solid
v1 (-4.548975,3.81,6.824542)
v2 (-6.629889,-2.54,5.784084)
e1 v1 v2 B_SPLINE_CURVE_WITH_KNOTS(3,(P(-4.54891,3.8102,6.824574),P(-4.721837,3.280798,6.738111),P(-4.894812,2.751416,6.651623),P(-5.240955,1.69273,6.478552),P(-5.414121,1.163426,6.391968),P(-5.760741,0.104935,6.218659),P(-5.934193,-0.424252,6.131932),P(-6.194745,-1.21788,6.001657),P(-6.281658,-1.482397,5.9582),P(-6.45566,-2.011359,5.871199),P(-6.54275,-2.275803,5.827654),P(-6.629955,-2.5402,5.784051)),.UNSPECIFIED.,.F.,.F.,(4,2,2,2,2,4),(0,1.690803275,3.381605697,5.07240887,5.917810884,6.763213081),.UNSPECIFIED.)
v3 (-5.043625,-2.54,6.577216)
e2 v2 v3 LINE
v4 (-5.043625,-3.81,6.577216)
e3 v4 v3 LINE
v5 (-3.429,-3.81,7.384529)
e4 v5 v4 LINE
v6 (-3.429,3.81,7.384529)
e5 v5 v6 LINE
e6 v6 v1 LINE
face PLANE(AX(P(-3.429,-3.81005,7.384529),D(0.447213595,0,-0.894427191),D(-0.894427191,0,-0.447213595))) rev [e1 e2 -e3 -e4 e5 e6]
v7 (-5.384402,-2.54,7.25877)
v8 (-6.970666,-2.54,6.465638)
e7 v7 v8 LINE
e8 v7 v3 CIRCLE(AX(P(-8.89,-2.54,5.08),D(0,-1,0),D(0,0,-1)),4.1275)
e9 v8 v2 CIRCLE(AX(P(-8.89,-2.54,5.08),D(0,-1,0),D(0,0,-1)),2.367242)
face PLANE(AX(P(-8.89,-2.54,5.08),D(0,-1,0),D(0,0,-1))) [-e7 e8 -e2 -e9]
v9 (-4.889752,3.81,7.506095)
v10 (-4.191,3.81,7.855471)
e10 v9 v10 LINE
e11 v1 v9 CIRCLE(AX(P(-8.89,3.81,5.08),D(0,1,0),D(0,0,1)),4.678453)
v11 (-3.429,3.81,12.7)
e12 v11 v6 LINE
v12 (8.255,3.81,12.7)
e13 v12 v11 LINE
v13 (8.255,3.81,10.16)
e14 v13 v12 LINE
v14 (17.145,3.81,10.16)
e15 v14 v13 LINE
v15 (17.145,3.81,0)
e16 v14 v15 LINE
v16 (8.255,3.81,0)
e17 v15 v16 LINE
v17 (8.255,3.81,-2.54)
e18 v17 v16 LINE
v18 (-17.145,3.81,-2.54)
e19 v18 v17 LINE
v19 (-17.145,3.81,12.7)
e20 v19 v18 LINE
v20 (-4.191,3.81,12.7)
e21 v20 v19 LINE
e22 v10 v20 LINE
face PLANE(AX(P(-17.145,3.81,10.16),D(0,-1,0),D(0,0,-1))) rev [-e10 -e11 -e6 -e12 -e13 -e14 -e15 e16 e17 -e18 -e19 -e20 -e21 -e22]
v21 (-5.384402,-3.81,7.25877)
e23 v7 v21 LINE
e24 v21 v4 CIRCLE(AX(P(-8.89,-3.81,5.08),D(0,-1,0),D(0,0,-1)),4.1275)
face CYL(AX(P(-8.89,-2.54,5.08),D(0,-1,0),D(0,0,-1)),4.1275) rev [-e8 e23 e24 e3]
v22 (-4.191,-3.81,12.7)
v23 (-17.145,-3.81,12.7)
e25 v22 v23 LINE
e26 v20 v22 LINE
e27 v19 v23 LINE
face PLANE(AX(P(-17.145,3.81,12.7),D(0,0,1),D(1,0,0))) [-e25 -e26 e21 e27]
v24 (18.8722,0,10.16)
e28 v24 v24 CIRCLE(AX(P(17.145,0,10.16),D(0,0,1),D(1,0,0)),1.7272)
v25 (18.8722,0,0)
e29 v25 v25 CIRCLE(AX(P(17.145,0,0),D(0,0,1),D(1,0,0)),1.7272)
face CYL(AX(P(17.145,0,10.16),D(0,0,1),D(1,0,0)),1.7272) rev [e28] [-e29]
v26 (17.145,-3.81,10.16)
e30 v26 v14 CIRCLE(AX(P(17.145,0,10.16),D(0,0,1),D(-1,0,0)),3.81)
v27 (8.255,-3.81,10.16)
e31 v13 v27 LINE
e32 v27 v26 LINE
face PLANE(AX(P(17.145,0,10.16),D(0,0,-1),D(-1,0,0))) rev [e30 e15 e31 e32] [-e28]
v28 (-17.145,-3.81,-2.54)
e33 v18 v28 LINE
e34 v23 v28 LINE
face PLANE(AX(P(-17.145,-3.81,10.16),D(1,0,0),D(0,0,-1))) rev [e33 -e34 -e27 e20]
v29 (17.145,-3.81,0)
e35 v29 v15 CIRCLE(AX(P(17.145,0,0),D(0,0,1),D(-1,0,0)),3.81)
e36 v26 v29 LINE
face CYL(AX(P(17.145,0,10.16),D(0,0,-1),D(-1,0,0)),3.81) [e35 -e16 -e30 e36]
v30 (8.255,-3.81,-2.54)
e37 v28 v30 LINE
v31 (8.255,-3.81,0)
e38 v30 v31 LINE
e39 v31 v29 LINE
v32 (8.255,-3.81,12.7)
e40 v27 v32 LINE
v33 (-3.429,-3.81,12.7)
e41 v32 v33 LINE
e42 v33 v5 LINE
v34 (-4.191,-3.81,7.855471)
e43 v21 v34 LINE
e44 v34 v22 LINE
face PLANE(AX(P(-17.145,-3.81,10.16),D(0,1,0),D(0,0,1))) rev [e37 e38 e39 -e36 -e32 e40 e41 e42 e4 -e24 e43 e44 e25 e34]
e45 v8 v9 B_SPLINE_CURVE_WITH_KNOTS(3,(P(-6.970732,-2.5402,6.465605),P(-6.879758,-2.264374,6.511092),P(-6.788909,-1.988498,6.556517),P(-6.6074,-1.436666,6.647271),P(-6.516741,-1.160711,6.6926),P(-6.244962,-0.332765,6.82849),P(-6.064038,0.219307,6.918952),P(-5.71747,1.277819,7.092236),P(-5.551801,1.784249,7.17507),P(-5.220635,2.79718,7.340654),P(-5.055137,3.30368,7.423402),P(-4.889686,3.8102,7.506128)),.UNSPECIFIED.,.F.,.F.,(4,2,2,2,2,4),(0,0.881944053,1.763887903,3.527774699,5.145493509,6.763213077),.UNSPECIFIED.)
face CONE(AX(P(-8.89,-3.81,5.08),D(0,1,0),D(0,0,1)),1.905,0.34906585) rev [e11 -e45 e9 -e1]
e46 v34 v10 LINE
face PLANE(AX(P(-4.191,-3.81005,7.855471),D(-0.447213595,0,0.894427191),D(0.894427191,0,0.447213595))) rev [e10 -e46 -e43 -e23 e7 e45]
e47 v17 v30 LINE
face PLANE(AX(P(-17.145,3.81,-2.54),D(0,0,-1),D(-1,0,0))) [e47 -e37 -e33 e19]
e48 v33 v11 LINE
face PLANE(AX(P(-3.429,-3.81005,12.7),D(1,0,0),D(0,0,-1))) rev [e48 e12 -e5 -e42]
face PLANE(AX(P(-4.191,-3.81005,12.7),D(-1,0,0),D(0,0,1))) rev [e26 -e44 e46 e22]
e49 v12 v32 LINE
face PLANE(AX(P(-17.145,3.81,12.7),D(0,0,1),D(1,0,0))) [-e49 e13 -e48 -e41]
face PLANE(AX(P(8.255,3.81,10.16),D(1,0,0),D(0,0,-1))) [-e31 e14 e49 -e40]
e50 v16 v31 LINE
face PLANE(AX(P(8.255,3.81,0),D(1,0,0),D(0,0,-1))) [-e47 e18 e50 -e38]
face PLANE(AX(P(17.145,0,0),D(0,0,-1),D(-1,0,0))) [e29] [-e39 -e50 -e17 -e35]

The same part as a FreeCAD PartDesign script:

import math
import FreeCAD as App
import Part
import Sketcher
from FreeCAD import Vector
Q = App.Units.Quantity

doc = App.newDocument("Part")
body = doc.addObject("PartDesign::Body", "Body")

# Sketch on XY plane
sketch1 = doc.addObject("Sketcher::SketchObject", "Sketch")
body.addObject(sketch1)
sketch1.AttachmentSupport = (doc.XY_Plane, [""])
sketch1.MapMode = "FlatFace"
sketch1.addGeometry(Part.LineSegment(Vector(-17.145, -3.81, 0), Vector(17.145, -3.81, 0)), False)
sketch1.addGeometry(Part.ArcOfCircle(Part.Circle(Vector(17.145, 0, 0), Vector(0, 0, 1), 3.81), math.radians(-90), math.radians(90)), False)
sketch1.addGeometry(Part.LineSegment(Vector(17.145, 3.81, 0), Vector(-17.145, 3.81, 0)), False)
sketch1.addGeometry(Part.LineSegment(Vector(-17.145, 3.81, 0), Vector(-17.145, -3.81, 0)), False)
sketch1.addConstraint(Sketcher.Constraint("Tangent", 0, 2, 1, 1))
sketch1.addConstraint(Sketcher.Constraint("Tangent", 1, 2, 2, 1))
sketch1.addConstraint(Sketcher.Constraint("Coincident", 2, 2, 3, 1))
sketch1.addConstraint(Sketcher.Constraint("Coincident", 3, 2, 0, 1))
sketch1.addConstraint(Sketcher.Constraint("Horizontal", 0))
sketch1.addConstraint(Sketcher.Constraint("Horizontal", 2))
sketch1.addConstraint(Sketcher.Constraint("Vertical", 3))
sketch1.addConstraint(Sketcher.Constraint("Symmetric", 0, 2, 2, 2, -1, 1))
sketch1.addConstraint(Sketcher.Constraint("Radius", 1, Q("0.15 in")))
sketch1.addConstraint(Sketcher.Constraint("DistanceX", 0, 1, 0, 2, Q("1.35 in")))
pad1 = doc.addObject("PartDesign::Pad", "Pad")
body.addObject(pad1)
pad1.Profile = sketch1
pad1.Length = Q("0.4 in")

# Sketch on XY plane
sketch2 = doc.addObject("Sketcher::SketchObject", "Sketch001")
body.addObject(sketch2)
sketch2.AttachmentSupport = (doc.XY_Plane, [""])
sketch2.MapMode = "FlatFace"
sketch2.AttachmentOffset = App.Placement(Vector(0, 0, 0.4 * 25.4), App.Rotation())
sketch2.addGeometry(Part.Circle(Vector(17.145, 0, 0), Vector(0, 0, 1), 1.7272), False)
sketch2.addConstraint(Sketcher.Constraint("PointOnObject", 0, 3, -1))
sketch2.addConstraint(Sketcher.Constraint("Diameter", 0, Q("0.136 in")))
sketch2.addConstraint(Sketcher.Constraint("DistanceX", -1, 1, 0, 3, Q("0.675 in")))
doc.recompute()
hole = doc.addObject("PartDesign::Hole", "Hole")
body.addObject(hole)
hole.Profile = sketch2
hole.ThreadType = "None"
hole.Diameter = Q("0.136 in")
hole.DepthType = "ThroughAll"

# Sketch on XZ plane
sketch3 = doc.addObject("Sketcher::SketchObject", "Sketch002")
body.addObject(sketch3)
sketch3.AttachmentSupport = (doc.XZ_Plane, [""])
sketch3.MapMode = "FlatFace"
sketch3.AttachmentOffset = App.Placement(Vector(0, 0, 0.15 * 25.4), App.Rotation())
sketch3.addGeometry(Part.Circle(Vector(-8.89, 5.08, 0), Vector(0, 0, 1), 1.905), False)
sketch3.addConstraint(Sketcher.Constraint("Diameter", 0, Q("0.15 in")))
sketch3.addConstraint(Sketcher.Constraint("DistanceY", -1, 1, 0, 3, Q("0.2 in")))
sketch3.addConstraint(Sketcher.Constraint("DistanceX", 0, 3, -1, 1, Q("0.35 in")))
pocket1 = doc.addObject("PartDesign::Pocket", "Pocket")
body.addObject(pocket1)
pocket1.Profile = sketch3
pocket1.Length = 8.62
pocket1.TaperAngle = 20

# Sketch on XZ plane
sketch4 = doc.addObject("Sketcher::SketchObject", "Sketch003")
body.addObject(sketch4)
sketch4.AttachmentSupport = (doc.XZ_Plane, [""])
sketch4.MapMode = "FlatFace"
sketch4.AttachmentOffset = App.Placement(Vector(0, 0, 0.15 * 25.4), App.Rotation())
sketch4.addGeometry(Part.Circle(Vector(-8.89, 5.08, 0), Vector(0, 0, 1), 4.1275), False)
sketch4.addConstraint(Sketcher.Constraint("Diameter", 0, Q("0.325 in")))
sketch4.addConstraint(Sketcher.Constraint("DistanceY", -1, 1, 0, 3, Q("0.2 in")))
sketch4.addConstraint(Sketcher.Constraint("DistanceX", 0, 3, -1, 1, Q("0.35 in")))
pocket2 = doc.addObject("PartDesign::Pocket", "Pocket001")
body.addObject(pocket2)
pocket2.Profile = sketch4
pocket2.Length = Q("0.05 in")

# Sketch on XZ plane
sketch5 = doc.addObject("Sketcher::SketchObject", "Sketch004")
body.addObject(sketch5)
sketch5.AttachmentSupport = (doc.XZ_Plane, [""])
sketch5.MapMode = "FlatFace"
sketch5.AttachmentOffset = App.Placement(Vector(0, 0, 0.15 * 25.4), App.Rotation())
sketch5.addGeometry(Part.LineSegment(Vector(-17.145, 12.7, 0), Vector(-17.145, 10.16, 0)), False)
sketch5.addGeometry(Part.LineSegment(Vector(-17.145, 10.16, 0), Vector(8.255, 10.16, 0)), False)
sketch5.addGeometry(Part.LineSegment(Vector(8.255, 10.16, 0), Vector(8.255, 12.7, 0)), False)
sketch5.addGeometry(Part.LineSegment(Vector(8.255, 12.7, 0), Vector(-17.145, 12.7, 0)), False)
sketch5.addGeometry(Part.LineSegment(Vector(-17.145, 0, 0), Vector(-17.145, -2.54, 0)), False)
sketch5.addGeometry(Part.LineSegment(Vector(-17.145, -2.54, 0), Vector(8.255, -2.54, 0)), False)
sketch5.addGeometry(Part.LineSegment(Vector(8.255, -2.54, 0), Vector(8.255, 0, 0)), False)
sketch5.addGeometry(Part.LineSegment(Vector(8.255, 0, 0), Vector(-17.145, 0, 0)), False)
sketch5.addConstraint(Sketcher.Constraint("Coincident", 0, 2, 1, 1))
sketch5.addConstraint(Sketcher.Constraint("Coincident", 1, 2, 2, 1))
sketch5.addConstraint(Sketcher.Constraint("Coincident", 2, 2, 3, 1))
sketch5.addConstraint(Sketcher.Constraint("Coincident", 3, 2, 0, 1))
sketch5.addConstraint(Sketcher.Constraint("Coincident", 4, 2, 5, 1))
sketch5.addConstraint(Sketcher.Constraint("Coincident", 5, 2, 6, 1))
sketch5.addConstraint(Sketcher.Constraint("Coincident", 6, 2, 7, 1))
sketch5.addConstraint(Sketcher.Constraint("Coincident", 7, 2, 4, 1))
sketch5.addConstraint(Sketcher.Constraint("Vertical", 0))
sketch5.addConstraint(Sketcher.Constraint("Horizontal", 1))
sketch5.addConstraint(Sketcher.Constraint("Vertical", 2))
sketch5.addConstraint(Sketcher.Constraint("Horizontal", 3))
sketch5.addConstraint(Sketcher.Constraint("Vertical", 4))
sketch5.addConstraint(Sketcher.Constraint("Horizontal", 5))
sketch5.addConstraint(Sketcher.Constraint("Vertical", 6))
sketch5.addConstraint(Sketcher.Constraint("Horizontal", 7))
sketch5.addConstraint(Sketcher.Constraint("PointOnObject", 6, 2, -1))
sketch5.addConstraint(Sketcher.Constraint("Vertical", 3, 2, 4, 2))
sketch5.addConstraint(Sketcher.Constraint("Vertical", 2, 2, 5, 2))
sketch5.addConstraint(Sketcher.Constraint("Equal", 2, 4))
sketch5.addConstraint(Sketcher.Constraint("DistanceX", 1, 1, 1, 2, Q("1 in")))
sketch5.addConstraint(Sketcher.Constraint("DistanceY", 0, 2, 0, 1, Q("0.1 in")))
sketch5.addConstraint(Sketcher.Constraint("DistanceY", -1, 1, 0, 2, Q("0.4 in")))
sketch5.addConstraint(Sketcher.Constraint("DistanceX", 0, 2, -1, 1, Q("0.675 in")))
pad2 = doc.addObject("PartDesign::Pad", "Pad001")
body.addObject(pad2)
pad2.Profile = sketch5
pad2.Length = Q("0.3 in")
pad2.Reversed = True

# Sketch on XZ plane
sketch6 = doc.addObject("Sketcher::SketchObject", "Sketch005")
body.addObject(sketch6)
sketch6.AttachmentSupport = (doc.XZ_Plane, [""])
sketch6.MapMode = "FlatFace"
sketch6.AttachmentOffset = App.Placement(Vector(0, 0, -0.15 * 25.4), App.Rotation())
sketch6.addGeometry(Part.LineSegment(Vector(-3.429, 12.7, 0), Vector(-3.429, 7.384529, 0)), False)
sketch6.addGeometry(Part.LineSegment(Vector(-3.429, 7.384529, 0), Vector(-8.719612, 4.739223, 0)), False)
sketch6.addGeometry(Part.LineSegment(Vector(-8.719612, 4.739223, 0), Vector(-9.060388, 5.420777, 0)), False)
sketch6.addGeometry(Part.LineSegment(Vector(-9.060388, 5.420777, 0), Vector(-4.191, 7.855471, 0)), False)
sketch6.addGeometry(Part.LineSegment(Vector(-4.191, 7.855471, 0), Vector(-4.191, 12.7, 0)), False)
sketch6.addGeometry(Part.LineSegment(Vector(-4.191, 12.7, 0), Vector(-3.429, 12.7, 0)), False)
sketch6.addConstraint(Sketcher.Constraint("Coincident", 0, 2, 1, 1))
sketch6.addConstraint(Sketcher.Constraint("Coincident", 1, 2, 2, 1))
sketch6.addConstraint(Sketcher.Constraint("Coincident", 2, 2, 3, 1))
sketch6.addConstraint(Sketcher.Constraint("Coincident", 3, 2, 4, 1))
sketch6.addConstraint(Sketcher.Constraint("Coincident", 4, 2, 5, 1))
sketch6.addConstraint(Sketcher.Constraint("Coincident", 5, 2, 0, 1))
sketch6.addConstraint(Sketcher.Constraint("Vertical", 0))
sketch6.addConstraint(Sketcher.Constraint("Vertical", 4))
sketch6.addConstraint(Sketcher.Constraint("Horizontal", 5))
sketch6.addConstraint(Sketcher.Constraint("Perpendicular", 1, 2))
sketch6.addConstraint(Sketcher.Constraint("Perpendicular", 2, 3))
sketch6.addConstraint(Sketcher.Constraint("DistanceX", 5, 1, 5, 2, Q("0.03 in")))
sketch6.addConstraint(Sketcher.Constraint("DistanceY", -1, 1, 4, 2, Q("0.5 in")))
sketch6.addConstraint(Sketcher.Constraint("Distance", 2, Q("0.03 in")))
sketch6.addConstraint(Sketcher.Constraint("DistanceX", 0, 2, -1, 1, Q("0.135 in")))
sketch6.addConstraint(Sketcher.Constraint("DistanceY", 0, 2, 0, 1, 5.315471))
sketch6.addConstraint(Sketcher.Constraint("DistanceY", 4, 1, 4, 2, 4.844529))
sketch6.addConstraint(Sketcher.Constraint("Distance", 3, 5.444142))
pocket3 = doc.addObject("PartDesign::Pocket", "Pocket002")
body.addObject(pocket3)
pocket3.Profile = sketch6
pocket3.Type = "ThroughAll"
pocket3.Reversed = True

doc.recompute()
